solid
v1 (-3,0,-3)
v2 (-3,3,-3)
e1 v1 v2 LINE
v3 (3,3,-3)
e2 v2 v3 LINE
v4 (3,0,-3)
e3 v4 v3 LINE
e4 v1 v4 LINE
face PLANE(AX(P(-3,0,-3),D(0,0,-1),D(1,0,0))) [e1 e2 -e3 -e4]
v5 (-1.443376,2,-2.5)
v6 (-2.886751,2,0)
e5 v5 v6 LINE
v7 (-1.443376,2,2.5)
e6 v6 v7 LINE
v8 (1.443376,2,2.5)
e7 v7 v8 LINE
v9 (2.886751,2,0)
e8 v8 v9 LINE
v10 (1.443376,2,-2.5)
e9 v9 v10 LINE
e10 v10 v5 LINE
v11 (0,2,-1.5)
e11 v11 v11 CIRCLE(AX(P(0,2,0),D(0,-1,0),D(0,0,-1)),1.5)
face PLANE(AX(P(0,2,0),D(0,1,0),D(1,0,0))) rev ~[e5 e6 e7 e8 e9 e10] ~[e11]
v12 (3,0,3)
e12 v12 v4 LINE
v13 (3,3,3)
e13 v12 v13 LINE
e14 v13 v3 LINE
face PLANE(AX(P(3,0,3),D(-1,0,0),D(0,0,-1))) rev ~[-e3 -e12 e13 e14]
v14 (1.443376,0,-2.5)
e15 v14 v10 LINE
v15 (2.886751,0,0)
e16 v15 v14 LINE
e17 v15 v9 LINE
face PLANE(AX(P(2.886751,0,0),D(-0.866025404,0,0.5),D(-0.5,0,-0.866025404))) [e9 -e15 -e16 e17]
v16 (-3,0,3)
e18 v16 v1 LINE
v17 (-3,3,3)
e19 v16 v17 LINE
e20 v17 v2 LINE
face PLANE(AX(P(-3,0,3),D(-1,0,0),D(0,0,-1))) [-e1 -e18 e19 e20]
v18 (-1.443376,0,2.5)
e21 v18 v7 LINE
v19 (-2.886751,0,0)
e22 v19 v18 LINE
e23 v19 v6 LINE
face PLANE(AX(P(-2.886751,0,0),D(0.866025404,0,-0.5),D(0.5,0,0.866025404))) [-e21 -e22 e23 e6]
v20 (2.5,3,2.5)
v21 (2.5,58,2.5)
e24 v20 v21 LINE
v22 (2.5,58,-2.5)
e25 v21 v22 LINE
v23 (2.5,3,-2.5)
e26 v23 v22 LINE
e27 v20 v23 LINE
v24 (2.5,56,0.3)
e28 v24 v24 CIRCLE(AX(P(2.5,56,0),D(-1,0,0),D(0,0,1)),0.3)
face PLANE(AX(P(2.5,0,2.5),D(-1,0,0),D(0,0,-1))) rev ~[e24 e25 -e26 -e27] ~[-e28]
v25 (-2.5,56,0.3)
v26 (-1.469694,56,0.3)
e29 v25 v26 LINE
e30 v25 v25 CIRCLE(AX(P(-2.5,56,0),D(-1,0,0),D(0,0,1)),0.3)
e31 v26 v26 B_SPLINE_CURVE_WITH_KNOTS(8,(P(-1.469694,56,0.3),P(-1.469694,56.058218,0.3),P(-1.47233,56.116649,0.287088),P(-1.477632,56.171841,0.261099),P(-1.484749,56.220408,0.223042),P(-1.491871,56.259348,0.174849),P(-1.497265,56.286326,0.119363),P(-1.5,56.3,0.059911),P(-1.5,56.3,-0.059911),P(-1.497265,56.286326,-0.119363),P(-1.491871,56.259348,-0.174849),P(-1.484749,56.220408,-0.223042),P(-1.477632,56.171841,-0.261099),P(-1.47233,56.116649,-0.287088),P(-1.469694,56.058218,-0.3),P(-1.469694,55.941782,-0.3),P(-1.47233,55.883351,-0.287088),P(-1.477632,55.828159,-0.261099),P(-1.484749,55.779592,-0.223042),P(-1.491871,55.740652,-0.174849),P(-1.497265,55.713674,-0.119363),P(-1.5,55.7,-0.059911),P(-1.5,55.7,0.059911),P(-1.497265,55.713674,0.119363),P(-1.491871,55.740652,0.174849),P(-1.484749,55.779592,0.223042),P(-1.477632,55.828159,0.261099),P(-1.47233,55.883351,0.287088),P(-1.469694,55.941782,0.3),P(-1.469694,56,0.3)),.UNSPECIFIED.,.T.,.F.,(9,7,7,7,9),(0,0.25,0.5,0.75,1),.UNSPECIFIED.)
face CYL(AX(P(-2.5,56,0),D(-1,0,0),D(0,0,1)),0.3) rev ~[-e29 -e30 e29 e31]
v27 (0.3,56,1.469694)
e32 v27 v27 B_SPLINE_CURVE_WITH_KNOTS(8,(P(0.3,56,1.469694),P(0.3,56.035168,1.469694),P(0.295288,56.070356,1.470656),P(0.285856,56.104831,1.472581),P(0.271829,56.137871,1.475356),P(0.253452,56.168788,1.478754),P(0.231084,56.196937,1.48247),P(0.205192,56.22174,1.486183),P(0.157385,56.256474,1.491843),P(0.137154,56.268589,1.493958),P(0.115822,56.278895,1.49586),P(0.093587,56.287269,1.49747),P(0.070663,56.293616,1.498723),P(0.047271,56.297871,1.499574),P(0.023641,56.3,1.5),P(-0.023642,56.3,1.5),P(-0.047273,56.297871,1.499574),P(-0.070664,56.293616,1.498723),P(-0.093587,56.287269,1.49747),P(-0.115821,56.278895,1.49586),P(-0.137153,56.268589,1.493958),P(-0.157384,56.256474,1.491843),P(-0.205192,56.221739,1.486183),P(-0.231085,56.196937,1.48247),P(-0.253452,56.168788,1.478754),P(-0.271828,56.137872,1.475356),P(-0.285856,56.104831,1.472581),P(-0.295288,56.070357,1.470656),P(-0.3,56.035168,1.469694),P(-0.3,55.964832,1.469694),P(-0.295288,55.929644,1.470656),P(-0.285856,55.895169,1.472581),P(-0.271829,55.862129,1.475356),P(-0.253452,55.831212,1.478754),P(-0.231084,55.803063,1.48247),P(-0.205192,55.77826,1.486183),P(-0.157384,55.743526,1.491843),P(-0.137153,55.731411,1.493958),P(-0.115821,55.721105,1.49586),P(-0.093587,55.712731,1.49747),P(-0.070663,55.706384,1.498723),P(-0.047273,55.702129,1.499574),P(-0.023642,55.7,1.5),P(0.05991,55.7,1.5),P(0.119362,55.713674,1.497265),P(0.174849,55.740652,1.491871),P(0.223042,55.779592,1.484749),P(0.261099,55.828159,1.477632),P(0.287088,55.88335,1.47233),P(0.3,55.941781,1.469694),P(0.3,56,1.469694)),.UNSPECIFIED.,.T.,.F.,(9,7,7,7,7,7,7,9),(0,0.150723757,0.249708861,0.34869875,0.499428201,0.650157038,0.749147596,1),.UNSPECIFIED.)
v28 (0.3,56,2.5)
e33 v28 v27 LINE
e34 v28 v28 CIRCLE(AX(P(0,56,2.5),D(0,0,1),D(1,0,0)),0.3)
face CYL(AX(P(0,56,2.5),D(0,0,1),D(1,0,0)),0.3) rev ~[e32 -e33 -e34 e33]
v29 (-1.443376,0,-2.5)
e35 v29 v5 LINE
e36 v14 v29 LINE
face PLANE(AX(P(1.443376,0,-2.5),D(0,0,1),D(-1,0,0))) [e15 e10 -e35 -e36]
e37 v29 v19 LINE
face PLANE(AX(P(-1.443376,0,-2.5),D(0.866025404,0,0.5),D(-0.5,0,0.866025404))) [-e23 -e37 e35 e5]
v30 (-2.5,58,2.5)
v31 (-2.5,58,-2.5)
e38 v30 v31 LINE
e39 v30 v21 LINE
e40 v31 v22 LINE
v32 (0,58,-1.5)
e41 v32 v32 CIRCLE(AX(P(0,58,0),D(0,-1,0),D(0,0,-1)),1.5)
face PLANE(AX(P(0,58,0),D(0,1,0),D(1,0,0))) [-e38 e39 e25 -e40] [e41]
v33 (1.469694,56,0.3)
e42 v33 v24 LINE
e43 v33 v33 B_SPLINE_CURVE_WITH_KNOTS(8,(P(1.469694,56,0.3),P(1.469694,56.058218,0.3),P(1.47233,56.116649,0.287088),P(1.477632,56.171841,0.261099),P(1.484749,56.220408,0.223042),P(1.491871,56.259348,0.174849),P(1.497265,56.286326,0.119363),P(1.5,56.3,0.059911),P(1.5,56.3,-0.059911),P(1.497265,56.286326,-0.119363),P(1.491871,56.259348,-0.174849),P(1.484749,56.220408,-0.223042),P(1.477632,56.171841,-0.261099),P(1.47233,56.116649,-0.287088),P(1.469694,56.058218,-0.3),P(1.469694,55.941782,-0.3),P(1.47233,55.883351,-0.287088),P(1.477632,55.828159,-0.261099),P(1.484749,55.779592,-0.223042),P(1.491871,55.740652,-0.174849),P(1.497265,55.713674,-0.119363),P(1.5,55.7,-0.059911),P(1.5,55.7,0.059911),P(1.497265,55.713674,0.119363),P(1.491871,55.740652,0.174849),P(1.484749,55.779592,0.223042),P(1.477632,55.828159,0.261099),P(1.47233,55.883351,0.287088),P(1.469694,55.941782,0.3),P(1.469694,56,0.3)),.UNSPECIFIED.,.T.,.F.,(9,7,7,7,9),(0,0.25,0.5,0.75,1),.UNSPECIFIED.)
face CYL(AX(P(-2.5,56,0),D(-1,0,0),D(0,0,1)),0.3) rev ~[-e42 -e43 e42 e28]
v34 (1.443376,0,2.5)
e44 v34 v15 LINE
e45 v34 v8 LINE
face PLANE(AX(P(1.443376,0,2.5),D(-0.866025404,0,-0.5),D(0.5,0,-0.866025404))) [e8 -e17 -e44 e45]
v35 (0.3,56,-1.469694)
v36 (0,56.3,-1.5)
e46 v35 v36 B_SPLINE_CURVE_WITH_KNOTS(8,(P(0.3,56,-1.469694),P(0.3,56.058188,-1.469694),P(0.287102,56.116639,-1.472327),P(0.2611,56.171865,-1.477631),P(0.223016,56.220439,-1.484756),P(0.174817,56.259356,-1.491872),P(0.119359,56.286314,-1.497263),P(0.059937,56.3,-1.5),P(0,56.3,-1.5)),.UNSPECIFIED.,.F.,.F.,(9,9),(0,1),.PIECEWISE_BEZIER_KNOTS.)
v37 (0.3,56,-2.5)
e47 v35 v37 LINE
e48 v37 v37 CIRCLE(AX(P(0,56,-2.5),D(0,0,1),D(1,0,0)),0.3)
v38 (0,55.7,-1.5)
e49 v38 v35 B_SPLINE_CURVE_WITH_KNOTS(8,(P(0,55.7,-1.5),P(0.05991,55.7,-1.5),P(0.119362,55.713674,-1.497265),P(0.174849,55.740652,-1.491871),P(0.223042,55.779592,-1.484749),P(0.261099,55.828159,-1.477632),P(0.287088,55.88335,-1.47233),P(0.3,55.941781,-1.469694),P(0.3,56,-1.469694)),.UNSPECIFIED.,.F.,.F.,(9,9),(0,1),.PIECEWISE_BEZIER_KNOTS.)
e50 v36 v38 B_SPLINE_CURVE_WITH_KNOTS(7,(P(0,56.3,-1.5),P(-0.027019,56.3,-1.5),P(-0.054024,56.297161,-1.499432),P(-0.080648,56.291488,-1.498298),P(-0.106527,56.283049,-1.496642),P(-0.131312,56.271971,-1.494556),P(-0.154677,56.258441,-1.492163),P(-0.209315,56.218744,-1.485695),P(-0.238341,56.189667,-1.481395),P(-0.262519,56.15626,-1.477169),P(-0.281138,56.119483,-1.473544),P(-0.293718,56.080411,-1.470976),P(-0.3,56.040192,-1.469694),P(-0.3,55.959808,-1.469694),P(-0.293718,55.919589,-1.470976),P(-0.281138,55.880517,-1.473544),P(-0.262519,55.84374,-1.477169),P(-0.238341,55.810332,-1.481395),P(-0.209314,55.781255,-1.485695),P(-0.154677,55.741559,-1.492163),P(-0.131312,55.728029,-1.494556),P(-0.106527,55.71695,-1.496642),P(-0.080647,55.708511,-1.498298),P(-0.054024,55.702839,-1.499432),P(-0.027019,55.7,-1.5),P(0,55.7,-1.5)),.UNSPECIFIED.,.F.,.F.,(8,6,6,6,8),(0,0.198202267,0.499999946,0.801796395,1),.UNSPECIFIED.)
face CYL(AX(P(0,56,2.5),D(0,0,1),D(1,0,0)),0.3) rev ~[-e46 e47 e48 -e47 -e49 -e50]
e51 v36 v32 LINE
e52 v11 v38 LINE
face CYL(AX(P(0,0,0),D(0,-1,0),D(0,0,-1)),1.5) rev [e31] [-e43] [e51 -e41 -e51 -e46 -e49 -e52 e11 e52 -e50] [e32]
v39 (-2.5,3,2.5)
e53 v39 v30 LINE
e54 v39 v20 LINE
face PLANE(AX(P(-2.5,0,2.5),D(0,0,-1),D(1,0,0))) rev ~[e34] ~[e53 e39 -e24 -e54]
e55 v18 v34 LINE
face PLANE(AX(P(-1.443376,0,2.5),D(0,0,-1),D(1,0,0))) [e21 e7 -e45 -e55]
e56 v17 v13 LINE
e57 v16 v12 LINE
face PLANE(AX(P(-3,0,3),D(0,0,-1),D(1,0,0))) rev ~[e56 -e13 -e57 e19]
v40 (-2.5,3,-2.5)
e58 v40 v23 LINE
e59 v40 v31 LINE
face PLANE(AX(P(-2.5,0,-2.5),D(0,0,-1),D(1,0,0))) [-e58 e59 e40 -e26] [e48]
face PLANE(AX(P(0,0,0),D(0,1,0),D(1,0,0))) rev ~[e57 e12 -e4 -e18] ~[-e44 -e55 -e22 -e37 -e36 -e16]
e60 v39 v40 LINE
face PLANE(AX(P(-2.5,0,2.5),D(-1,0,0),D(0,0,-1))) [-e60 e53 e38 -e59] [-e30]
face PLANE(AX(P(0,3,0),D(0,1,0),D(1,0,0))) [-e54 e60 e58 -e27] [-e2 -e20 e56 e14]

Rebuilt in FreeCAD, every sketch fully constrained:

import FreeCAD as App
import Part
import Sketcher

V = App.Vector
Q = App.Units.Quantity


def add_polygon(sketch, points):
    """Adds a closed chain of lines whose ends are joined by coincident constraints."""
    first, n = sketch.GeometryCount, len(points)
    for a, b in zip(points, points[1:] + points[:1]):
        sketch.addGeometry(Part.LineSegment(App.Vector(*a, 0), App.Vector(*b, 0)), False)
    for i in range(n):
        sketch.addConstraint(Sketcher.Constraint("Coincident", first + i, 2, first + (i + 1) % n, 1))

doc = App.newDocument("Part")
body = doc.addObject("PartDesign::Body", "Body")

# Sketch on XZ plane
sketch1 = body.newObject("Sketcher::SketchObject", "Sketch")
sketch1.AttachmentSupport = (doc.getObject("XZ_Plane"), [""])
sketch1.MapMode = "FlatFace"
add_polygon(sketch1, [(-2, -2), (-2, 2), (2, 2), (2, -2)])  # lines 0-3
sketch1.addConstraint([
    Sketcher.Constraint("Vertical", 0),
    Sketcher.Constraint("Horizontal", 1),
    Sketcher.Constraint("Vertical", 2),
    Sketcher.Constraint("Horizontal", 3),
    Sketcher.Constraint("Symmetric", 0, 2, 2, 2, -1, 1),
    Sketcher.Constraint("Equal", 3, 0),
    Sketcher.Constraint("DistanceX", 1, 1, 1, 2, 5.0),
])
pad1 = body.newObject("PartDesign::Pad", "Pad")
pad1.Profile = sketch1
pad1.Length = 58
pad1.Reversed = True

# Sketch on XZ plane
sketch2 = body.newObject("Sketcher::SketchObject", "Sketch001")
sketch2.AttachmentSupport = (doc.getObject("XZ_Plane"), [""])
sketch2.MapMode = "FlatFace"
add_polygon(sketch2, [(-3, -3), (-3, 3), (3, 3), (3, -3)])  # lines 0-3
sketch2.addConstraint([
    Sketcher.Constraint("Vertical", 0),
    Sketcher.Constraint("Horizontal", 1),
    Sketcher.Constraint("Vertical", 2),
    Sketcher.Constraint("Horizontal", 3),
    Sketcher.Constraint("Symmetric", 0, 2, 2, 2, -1, 1),
    Sketcher.Constraint("Equal", 3, 0),
    Sketcher.Constraint("DistanceX", 1, 1, 1, 2, 6.0),
])
pad2 = body.newObject("PartDesign::Pad", "Pad001")
pad2.Profile = sketch2
pad2.Length = 3
pad2.Reversed = True

# Sketch on XZ plane
sketch3 = body.newObject("Sketcher::SketchObject", "Sketch002")
sketch3.AttachmentSupport = (doc.getObject("XZ_Plane"), [""])
sketch3.MapMode = "FlatFace"
sketch3.addGeometry(Part.Circle(V(0, 0, 0), V(0, 0, 1), 1.5), False)
sketch3.addConstraint([
    Sketcher.Constraint("Coincident", 0, 3, -1, 1),
    Sketcher.Constraint("Diameter", 0, 3.0),
])
pocket1 = body.newObject("PartDesign::Pocket", "Pocket")
pocket1.Profile = sketch3
pocket1.Type = "ThroughAll"

# Sketch on XZ plane
sketch4 = body.newObject("Sketcher::SketchObject", "Sketch003")
sketch4.AttachmentSupport = (doc.getObject("XZ_Plane"), [""])
sketch4.MapMode = "FlatFace"
add_polygon(sketch4, [(2.9, 0), (1.4, -2.5), (-1.4, -2.5), (-2.9, 0), (-1.4, 2.5), (1.4, 2.5)])  # lines 0-5
sketch4.addConstraint([
    Sketcher.Constraint("Horizontal", 1),
    Sketcher.Constraint("Horizontal", 4),
    Sketcher.Constraint("Symmetric", 0, 2, 3, 2, -1, 1),
    Sketcher.Constraint("Symmetric", 2, 2, 5, 2, -1, 1),
    Sketcher.Constraint("PointOnObject", 2, 2, -1),
    Sketcher.Constraint("Parallel", 2, 5),
    Sketcher.Constraint("Vertical", 1, 2, 3, 2),
    Sketcher.Constraint("Angle", 0, Q("-120 deg")),
    Sketcher.Constraint("DistanceY", 1, 2, 3, 2, 5.0),
    Sketcher.Constraint("DistanceX", 1, 2, 1, 1, 2.886751),
])
pocket2 = body.newObject("PartDesign::Pocket", "Pocket001")
pocket2.Profile = sketch4
pocket2.Length = 2

# Sketch on XY plane
sketch5 = body.newObject("Sketcher::SketchObject", "Sketch004")
sketch5.AttachmentSupport = (doc.getObject("XY_Plane"), [""])
sketch5.MapMode = "FlatFace"
sketch5.AttachmentOffset = App.Placement(V(0, 0, 2.5), App.Rotation())
sketch5.addGeometry(Part.Circle(V(0, 56, 0), V(0, 0, 1), 0.3), False)
sketch5.addConstraint([
    Sketcher.Constraint("PointOnObject", 0, 3, -2),
    Sketcher.Constraint("Diameter", 0, 0.6),
    Sketcher.Constraint("DistanceY", -1, 1, 0, 3, 56.0),
])
pocket3 = body.newObject("PartDesign::Pocket", "Pocket002")
pocket3.Profile = sketch5
pocket3.Type = "ThroughAll"

# Sketch on YZ plane
sketch6 = body.newObject("Sketcher::SketchObject", "Sketch005")
sketch6.AttachmentSupport = (doc.getObject("YZ_Plane"), [""])
sketch6.MapMode = "FlatFace"
sketch6.AttachmentOffset = App.Placement(V(0, 0, -2.5), App.Rotation())
sketch6.addGeometry(Part.Circle(V(56, 0, 0), V(0, 0, 1), 0.3), False)
sketch6.addConstraint([
    Sketcher.Constraint("PointOnObject", 0, 3, -1),
    Sketcher.Constraint("Diameter", 0, 0.6),
    Sketcher.Constraint("DistanceX", -1, 1, 0, 3, 56.0),
])
pocket4 = body.newObject("PartDesign::Pocket", "Pocket003")
pocket4.Profile = sketch6
pocket4.Type = "ThroughAll"
pocket4.Reversed = True

doc.recompute()
